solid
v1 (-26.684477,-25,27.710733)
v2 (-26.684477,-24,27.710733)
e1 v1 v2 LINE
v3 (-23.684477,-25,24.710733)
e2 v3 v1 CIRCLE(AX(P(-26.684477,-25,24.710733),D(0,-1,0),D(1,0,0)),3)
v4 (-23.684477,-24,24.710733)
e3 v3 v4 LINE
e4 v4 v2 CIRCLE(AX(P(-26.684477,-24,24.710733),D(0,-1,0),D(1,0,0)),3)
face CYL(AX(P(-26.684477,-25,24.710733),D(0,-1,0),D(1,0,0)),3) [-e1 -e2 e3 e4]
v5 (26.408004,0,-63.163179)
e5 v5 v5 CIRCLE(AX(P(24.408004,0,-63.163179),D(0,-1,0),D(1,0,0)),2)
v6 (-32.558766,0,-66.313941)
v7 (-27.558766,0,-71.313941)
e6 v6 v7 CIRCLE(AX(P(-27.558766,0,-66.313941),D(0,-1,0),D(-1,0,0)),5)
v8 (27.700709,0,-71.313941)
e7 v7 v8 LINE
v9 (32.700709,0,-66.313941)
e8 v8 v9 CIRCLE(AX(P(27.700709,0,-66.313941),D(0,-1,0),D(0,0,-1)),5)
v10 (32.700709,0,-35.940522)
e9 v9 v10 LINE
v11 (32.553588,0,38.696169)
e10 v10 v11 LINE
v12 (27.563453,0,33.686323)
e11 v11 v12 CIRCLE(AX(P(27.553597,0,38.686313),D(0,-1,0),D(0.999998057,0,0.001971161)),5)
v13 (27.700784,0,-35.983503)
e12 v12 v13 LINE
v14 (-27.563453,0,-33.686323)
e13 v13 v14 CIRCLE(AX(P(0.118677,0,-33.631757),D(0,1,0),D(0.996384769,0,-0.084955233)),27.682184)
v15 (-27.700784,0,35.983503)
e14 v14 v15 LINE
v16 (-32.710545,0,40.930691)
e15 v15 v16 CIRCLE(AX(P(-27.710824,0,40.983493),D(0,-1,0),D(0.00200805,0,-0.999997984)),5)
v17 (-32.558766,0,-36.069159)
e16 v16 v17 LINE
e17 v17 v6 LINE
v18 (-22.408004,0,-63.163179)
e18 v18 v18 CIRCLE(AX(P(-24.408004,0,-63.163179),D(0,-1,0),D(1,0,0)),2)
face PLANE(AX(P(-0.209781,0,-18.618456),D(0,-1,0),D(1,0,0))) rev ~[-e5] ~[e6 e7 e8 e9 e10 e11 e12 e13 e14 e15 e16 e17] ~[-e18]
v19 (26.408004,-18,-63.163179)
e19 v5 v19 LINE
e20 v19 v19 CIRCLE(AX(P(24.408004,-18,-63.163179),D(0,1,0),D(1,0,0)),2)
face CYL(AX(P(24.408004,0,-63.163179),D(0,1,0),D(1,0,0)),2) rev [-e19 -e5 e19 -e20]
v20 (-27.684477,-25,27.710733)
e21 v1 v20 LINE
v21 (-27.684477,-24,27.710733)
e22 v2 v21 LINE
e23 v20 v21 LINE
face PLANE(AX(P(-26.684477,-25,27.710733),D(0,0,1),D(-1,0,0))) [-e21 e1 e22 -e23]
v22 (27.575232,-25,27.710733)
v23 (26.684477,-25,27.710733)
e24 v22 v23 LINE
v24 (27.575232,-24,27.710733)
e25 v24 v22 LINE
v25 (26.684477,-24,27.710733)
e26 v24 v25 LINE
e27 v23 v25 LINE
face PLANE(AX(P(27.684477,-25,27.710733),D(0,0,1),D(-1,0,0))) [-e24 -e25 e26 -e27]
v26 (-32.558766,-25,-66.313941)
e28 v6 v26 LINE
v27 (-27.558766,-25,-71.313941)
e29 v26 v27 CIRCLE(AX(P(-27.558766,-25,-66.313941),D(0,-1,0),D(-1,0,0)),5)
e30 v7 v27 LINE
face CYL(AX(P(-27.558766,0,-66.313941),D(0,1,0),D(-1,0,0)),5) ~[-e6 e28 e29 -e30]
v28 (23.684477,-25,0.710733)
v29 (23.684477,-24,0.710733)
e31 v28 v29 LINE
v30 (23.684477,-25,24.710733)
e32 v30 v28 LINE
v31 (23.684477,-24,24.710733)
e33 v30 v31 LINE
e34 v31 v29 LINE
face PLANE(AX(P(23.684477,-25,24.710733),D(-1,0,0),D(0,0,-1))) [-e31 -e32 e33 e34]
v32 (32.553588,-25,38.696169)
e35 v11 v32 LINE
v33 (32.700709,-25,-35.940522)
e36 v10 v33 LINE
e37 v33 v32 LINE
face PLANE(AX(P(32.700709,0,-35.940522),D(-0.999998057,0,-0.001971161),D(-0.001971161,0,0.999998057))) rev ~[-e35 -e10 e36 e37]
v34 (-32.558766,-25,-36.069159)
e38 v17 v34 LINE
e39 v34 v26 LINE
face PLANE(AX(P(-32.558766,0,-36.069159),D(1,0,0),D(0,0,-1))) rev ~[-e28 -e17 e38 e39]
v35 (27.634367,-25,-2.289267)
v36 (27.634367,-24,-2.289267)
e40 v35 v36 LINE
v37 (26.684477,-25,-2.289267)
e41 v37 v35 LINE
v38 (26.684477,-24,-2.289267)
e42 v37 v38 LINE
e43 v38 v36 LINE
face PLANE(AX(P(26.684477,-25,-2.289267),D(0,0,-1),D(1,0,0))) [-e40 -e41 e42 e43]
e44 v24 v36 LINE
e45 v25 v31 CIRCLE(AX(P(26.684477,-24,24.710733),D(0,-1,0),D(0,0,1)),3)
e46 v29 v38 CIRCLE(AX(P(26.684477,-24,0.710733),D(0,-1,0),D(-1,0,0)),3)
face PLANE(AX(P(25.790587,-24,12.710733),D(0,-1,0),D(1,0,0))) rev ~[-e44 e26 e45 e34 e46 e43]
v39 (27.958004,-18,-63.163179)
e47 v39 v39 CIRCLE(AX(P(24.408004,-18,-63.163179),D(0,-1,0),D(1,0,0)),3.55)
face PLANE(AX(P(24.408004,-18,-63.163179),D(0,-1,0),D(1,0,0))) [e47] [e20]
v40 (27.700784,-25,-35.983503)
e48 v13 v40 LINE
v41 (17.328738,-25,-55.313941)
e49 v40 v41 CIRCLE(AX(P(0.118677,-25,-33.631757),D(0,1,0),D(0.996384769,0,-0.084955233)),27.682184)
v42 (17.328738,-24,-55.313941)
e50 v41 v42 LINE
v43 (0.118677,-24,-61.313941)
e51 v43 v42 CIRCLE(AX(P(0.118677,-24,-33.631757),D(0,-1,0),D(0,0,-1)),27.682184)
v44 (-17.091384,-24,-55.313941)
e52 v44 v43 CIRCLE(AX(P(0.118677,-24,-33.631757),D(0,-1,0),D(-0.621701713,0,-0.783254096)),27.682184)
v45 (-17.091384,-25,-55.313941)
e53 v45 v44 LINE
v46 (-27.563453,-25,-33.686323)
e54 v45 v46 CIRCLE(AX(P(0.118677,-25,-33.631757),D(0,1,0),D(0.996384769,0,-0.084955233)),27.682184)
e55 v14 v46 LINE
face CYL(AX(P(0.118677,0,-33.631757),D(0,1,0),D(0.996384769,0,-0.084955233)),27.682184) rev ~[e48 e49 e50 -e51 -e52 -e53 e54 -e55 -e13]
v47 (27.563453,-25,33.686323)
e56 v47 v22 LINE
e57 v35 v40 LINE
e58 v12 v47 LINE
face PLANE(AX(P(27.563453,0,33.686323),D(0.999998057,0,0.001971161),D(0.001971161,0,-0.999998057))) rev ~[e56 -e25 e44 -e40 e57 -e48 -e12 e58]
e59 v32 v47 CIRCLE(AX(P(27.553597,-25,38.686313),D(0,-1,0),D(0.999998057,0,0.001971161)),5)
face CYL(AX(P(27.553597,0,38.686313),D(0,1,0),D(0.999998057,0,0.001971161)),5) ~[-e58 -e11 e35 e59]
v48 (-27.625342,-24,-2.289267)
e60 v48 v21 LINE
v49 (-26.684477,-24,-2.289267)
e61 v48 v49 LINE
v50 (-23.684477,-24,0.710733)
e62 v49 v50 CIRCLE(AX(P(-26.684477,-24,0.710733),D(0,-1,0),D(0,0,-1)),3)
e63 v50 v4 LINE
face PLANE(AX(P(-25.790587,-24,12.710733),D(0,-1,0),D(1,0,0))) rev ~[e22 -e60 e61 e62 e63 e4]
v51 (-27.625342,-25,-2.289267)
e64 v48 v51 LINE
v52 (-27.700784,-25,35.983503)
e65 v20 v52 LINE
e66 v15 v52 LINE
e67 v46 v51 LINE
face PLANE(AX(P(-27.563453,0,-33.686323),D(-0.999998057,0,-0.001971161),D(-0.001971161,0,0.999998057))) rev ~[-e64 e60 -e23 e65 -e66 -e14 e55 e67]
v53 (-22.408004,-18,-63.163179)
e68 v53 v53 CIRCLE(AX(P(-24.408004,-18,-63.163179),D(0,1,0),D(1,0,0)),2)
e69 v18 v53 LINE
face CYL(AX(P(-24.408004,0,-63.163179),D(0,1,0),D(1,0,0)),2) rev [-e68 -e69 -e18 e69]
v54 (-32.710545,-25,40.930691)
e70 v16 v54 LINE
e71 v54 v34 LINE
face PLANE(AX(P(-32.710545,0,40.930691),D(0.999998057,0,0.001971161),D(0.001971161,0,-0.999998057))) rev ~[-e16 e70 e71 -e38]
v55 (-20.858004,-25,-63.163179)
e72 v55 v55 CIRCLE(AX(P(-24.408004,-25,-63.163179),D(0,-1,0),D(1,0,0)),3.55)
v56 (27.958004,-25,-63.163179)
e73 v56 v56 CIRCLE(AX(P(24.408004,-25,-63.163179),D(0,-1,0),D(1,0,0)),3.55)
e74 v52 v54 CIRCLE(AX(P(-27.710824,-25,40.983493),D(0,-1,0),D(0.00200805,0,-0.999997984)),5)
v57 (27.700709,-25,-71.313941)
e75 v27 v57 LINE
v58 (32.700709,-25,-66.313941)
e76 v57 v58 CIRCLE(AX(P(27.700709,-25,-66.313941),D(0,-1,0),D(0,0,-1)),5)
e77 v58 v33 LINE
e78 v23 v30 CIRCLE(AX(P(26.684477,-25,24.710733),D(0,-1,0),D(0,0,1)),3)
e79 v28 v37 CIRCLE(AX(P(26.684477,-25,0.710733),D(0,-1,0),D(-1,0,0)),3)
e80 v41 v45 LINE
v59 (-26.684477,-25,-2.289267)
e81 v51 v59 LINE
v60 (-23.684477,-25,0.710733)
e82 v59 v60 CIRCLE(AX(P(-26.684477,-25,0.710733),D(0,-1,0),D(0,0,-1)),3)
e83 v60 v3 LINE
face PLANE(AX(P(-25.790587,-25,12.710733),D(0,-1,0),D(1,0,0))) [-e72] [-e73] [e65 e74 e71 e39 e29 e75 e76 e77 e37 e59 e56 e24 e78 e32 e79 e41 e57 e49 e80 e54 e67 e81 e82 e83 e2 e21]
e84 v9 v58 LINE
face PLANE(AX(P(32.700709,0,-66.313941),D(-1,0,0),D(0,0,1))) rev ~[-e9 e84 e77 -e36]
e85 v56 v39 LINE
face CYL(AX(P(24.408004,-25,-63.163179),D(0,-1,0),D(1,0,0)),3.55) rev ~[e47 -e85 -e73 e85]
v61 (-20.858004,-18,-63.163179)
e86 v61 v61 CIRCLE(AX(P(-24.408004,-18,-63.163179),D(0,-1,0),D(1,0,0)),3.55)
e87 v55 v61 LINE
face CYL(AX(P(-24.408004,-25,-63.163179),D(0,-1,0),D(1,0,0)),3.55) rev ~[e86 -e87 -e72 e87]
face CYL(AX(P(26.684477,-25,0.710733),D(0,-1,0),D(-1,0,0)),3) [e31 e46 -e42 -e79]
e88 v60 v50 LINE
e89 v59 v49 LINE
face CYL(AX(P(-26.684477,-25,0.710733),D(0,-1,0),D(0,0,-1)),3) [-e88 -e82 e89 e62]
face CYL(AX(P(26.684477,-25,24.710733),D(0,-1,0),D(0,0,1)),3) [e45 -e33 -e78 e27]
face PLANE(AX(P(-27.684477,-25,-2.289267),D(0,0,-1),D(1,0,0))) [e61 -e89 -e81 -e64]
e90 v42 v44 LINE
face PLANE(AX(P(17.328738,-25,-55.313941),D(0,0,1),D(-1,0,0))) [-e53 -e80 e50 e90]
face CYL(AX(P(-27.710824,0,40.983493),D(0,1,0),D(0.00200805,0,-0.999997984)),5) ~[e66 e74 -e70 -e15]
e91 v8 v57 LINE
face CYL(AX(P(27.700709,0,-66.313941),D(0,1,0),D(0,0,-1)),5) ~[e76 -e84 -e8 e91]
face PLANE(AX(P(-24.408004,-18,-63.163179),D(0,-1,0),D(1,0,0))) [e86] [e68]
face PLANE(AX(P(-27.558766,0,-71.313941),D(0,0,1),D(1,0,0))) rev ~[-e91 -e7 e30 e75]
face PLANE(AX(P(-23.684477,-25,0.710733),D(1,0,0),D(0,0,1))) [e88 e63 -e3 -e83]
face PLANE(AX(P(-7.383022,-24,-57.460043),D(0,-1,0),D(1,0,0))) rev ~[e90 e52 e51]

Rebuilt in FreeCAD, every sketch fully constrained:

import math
import FreeCAD as App
import Part
import Sketcher
from FreeCAD import Vector

doc = App.newDocument("Part")
body = doc.addObject("PartDesign::Body", "Body")

# Sketch on XZ plane
sketch1 = body.newObject("Sketcher::SketchObject", "Sketch")
sketch1.AttachmentSupport = (doc.getObject("XZ_Plane"), [""])
sketch1.MapMode = "FlatFace"
sketch1.addGeometry(Part.LineSegment(Vector(27.6, 33.7, 0), Vector(27.7, -36, 0)), False)
sketch1.addGeometry(Part.ArcOfCircle(Part.Circle(Vector(0.1, -33.6, 0), Vector(0, 0, 1), 27.7), math.radians(-180), math.radians(-5)), False)
sketch1.addGeometry(Part.LineSegment(Vector(-27.6, -33.7, 0), Vector(-27.7, 36, 0)), False)
sketch1.addGeometry(Part.ArcOfCircle(Part.Circle(Vector(-27.7, 41, 0), Vector(0, 0, 1), 5), math.radians(-90), math.radians(181)), False)
sketch1.addGeometry(Part.LineSegment(Vector(-32.7, 40.9, 0), Vector(-32.6, -36.1, 0)), False)
sketch1.addGeometry(Part.LineSegment(Vector(-32.6, -36.1, 0), Vector(-32.6, -66.3, 0)), False)
sketch1.addGeometry(Part.ArcOfCircle(Part.Circle(Vector(-27.6, -66.3, 0), Vector(0, 0, 1), 5), math.radians(180), math.radians(270)), False)
sketch1.addGeometry(Part.LineSegment(Vector(-27.6, -71.3, 0), Vector(27.7, -71.3, 0)), False)
sketch1.addGeometry(Part.ArcOfCircle(Part.Circle(Vector(27.7, -66.3, 0), Vector(0, 0, 1), 5), math.radians(-90), math.radians(0)), False)
sketch1.addGeometry(Part.LineSegment(Vector(32.7, -66.3, 0), Vector(32.7, -35.9, 0)), False)
sketch1.addGeometry(Part.LineSegment(Vector(32.7, -35.9, 0), Vector(32.6, 38.7, 0)), False)
sketch1.addGeometry(Part.ArcOfCircle(Part.Circle(Vector(27.6, 38.7, 0), Vector(0, 0, 1), 5), math.radians(0), math.radians(270)), False)
sketch1.addGeometry(Part.Circle(Vector(-24.4, -63.2, 0), Vector(0, 0, 1), 2), False)
sketch1.addGeometry(Part.Circle(Vector(24.4, -63.2, 0), Vector(0, 0, 1), 2), False)
sketch1.addConstraint(Sketcher.Constraint("Coincident", 0, 2, 1, 2))
sketch1.addConstraint(Sketcher.Constraint("Tangent", 1, 1, 2, 1))
sketch1.addConstraint(Sketcher.Constraint("Coincident", 2, 2, 3, 1))
sketch1.addConstraint(Sketcher.Constraint("Coincident", 3, 2, 4, 1))
sketch1.addConstraint(Sketcher.Constraint("Coincident", 4, 2, 5, 1))
sketch1.addConstraint(Sketcher.Constraint("Tangent", 5, 2, 6, 1))
sketch1.addConstraint(Sketcher.Constraint("Tangent", 6, 2, 7, 1))
sketch1.addConstraint(Sketcher.Constraint("Tangent", 7, 2, 8, 1))
sketch1.addConstraint(Sketcher.Constraint("Tangent", 8, 2, 9, 1))
sketch1.addConstraint(Sketcher.Constraint("Coincident", 9, 2, 10, 1))
sketch1.addConstraint(Sketcher.Constraint("Tangent", 10, 2, 11, 1))
sketch1.addConstraint(Sketcher.Constraint("Coincident", 11, 2, 0, 1))
sketch1.addConstraint(Sketcher.Constraint("Vertical", 5))
sketch1.addConstraint(Sketcher.Constraint("Horizontal", 7))
sketch1.addConstraint(Sketcher.Constraint("Vertical", 9))
sketch1.addConstraint(Sketcher.Constraint("Equal", 3, 6))
sketch1.addConstraint(Sketcher.Constraint("Equal", 6, 8))
sketch1.addConstraint(Sketcher.Constraint("Equal", 8, 11))
sketch1.addConstraint(Sketcher.Constraint("Equal", 12, 13))
sketch1.addConstraint(Sketcher.Constraint("Symmetric", 0, 2, 2, 2, -1, 1))
sketch1.addConstraint(Sketcher.Constraint("Symmetric", 1, 1, 11, 2, -1, 1))
sketch1.addConstraint(Sketcher.Constraint("Symmetric", 12, 3, 13, 3, -2))
sketch1.addConstraint(Sketcher.Constraint("Parallel", 2, 4))
sketch1.addConstraint(Sketcher.Constraint("Parallel", 4, 10))
sketch1.addConstraint(Sketcher.Constraint("Diameter", 12, 4.0))
sketch1.addConstraint(Sketcher.Constraint("Radius", 3, 5.0))
sketch1.addConstraint(Sketcher.Constraint("Distance", 4, 77.0))
sketch1.addConstraint(Sketcher.Constraint("Radius", 1, 27.682184))
sketch1.addConstraint(Sketcher.Constraint("DistanceX", 3, 2, 11, 2, 60.273998))
sketch1.addConstraint(Sketcher.Constraint("DistanceY", 9, 1, 9, 2, 30.373419))
sketch1.addConstraint(Sketcher.Constraint("DistanceX", 3, 3, 1, 3, 27.829501))
sketch1.addConstraint(Sketcher.Constraint("DistanceX", 12, 3, 11, 3, 51.961601))
sketch1.addConstraint(Sketcher.Constraint("DistanceY", 3, 2, 3, 3, 0.052802))
sketch1.addConstraint(Sketcher.Constraint("Distance", 0, 69.669962))
sketch1.addConstraint(Sketcher.Constraint("DistanceX", 7, 1, 7, 2, 55.259475))
sketch1.addConstraint(Sketcher.Constraint("DistanceY", 5, 2, 5, 1, 30.244782))
sketch1.addConstraint(Sketcher.Constraint("DistanceY", 6, 3, -1, 1, 66.313941))
sketch1.addConstraint(Sketcher.Constraint("DistanceY", 12, 3, -1, 1, 63.163179))
pad1 = body.newObject("PartDesign::Pad", "Pad")
pad1.Profile = sketch1
pad1.Length = 25

# Sketch on XZ plane
sketch2 = body.newObject("Sketcher::SketchObject", "Sketch001")
sketch2.AttachmentSupport = (doc.getObject("XZ_Plane"), [""])
sketch2.MapMode = "FlatFace"
sketch2.AttachmentOffset = App.Placement(Vector(0, 0, 25), App.Rotation())
sketch2.addGeometry(Part.LineSegment(Vector(-26.7, 27.7, 0), Vector(-27.7, 27.7, 0)), False)
sketch2.addGeometry(Part.LineSegment(Vector(-27.7, 27.7, 0), Vector(-27.7, -2.3, 0)), False)
sketch2.addGeometry(Part.LineSegment(Vector(-27.7, -2.3, 0), Vector(-26.7, -2.3, 0)), False)
sketch2.addGeometry(Part.ArcOfCircle(Part.Circle(Vector(-26.7, 0.7, 0), Vector(0, 0, 1), 3), math.radians(-90), math.radians(0)), False)
sketch2.addGeometry(Part.LineSegment(Vector(-23.7, 0.7, 0), Vector(-23.7, 24.7, 0)), False)
sketch2.addGeometry(Part.ArcOfCircle(Part.Circle(Vector(-26.7, 24.7, 0), Vector(0, 0, 1), 3), math.radians(0), math.radians(90)), False)
sketch2.addGeometry(Part.LineSegment(Vector(26.7, -2.3, 0), Vector(27.7, -2.3, 0)), False)
sketch2.addGeometry(Part.LineSegment(Vector(27.7, -2.3, 0), Vector(27.7, 27.7, 0)), False)
sketch2.addGeometry(Part.LineSegment(Vector(27.7, 27.7, 0), Vector(26.7, 27.7, 0)), False)
sketch2.addGeometry(Part.ArcOfCircle(Part.Circle(Vector(26.7, 24.7, 0), Vector(0, 0, 1), 3), math.radians(90), math.radians(180)), False)
sketch2.addGeometry(Part.LineSegment(Vector(23.7, 24.7, 0), Vector(23.7, 0.7, 0)), False)
sketch2.addGeometry(Part.ArcOfCircle(Part.Circle(Vector(26.7, 0.7, 0), Vector(0, 0, 1), 3), math.radians(180), math.radians(270)), False)
sketch2.addGeometry(Part.ArcOfCircle(Part.Circle(Vector(0.1, -33.6, 0), Vector(0, 0, 1), 27.7), math.radians(-128), math.radians(-90)), False)
sketch2.addGeometry(Part.ArcOfCircle(Part.Circle(Vector(0.1, -33.6, 0), Vector(0, 0, 1), 27.7), math.radians(-90), math.radians(-52)), False)
sketch2.addGeometry(Part.LineSegment(Vector(17.3, -55.3, 0), Vector(-17.1, -55.3, 0)), False)
sketch2.addConstraint(Sketcher.Constraint("Coincident", 0, 2, 1, 1))
sketch2.addConstraint(Sketcher.Constraint("Coincident", 1, 2, 2, 1))
sketch2.addConstraint(Sketcher.Constraint("Tangent", 2, 2, 3, 1))
sketch2.addConstraint(Sketcher.Constraint("Tangent", 3, 2, 4, 1))
sketch2.addConstraint(Sketcher.Constraint("Tangent", 4, 2, 5, 1))
sketch2.addConstraint(Sketcher.Constraint("Tangent", 5, 2, 0, 1))
sketch2.addConstraint(Sketcher.Constraint("Coincident", 6, 2, 7, 1))
sketch2.addConstraint(Sketcher.Constraint("Coincident", 7, 2, 8, 1))
sketch2.addConstraint(Sketcher.Constraint("Tangent", 8, 2, 9, 1))
sketch2.addConstraint(Sketcher.Constraint("Tangent", 9, 2, 10, 1))
sketch2.addConstraint(Sketcher.Constraint("Tangent", 10, 2, 11, 1))
sketch2.addConstraint(Sketcher.Constraint("Tangent", 11, 2, 6, 1))
sketch2.addConstraint(Sketcher.Constraint("Tangent", 12, 2, 13, 1))
sketch2.addConstraint(Sketcher.Constraint("Coincident", 13, 2, 14, 1))
sketch2.addConstraint(Sketcher.Constraint("Coincident", 14, 2, 12, 1))
sketch2.addConstraint(Sketcher.Constraint("Horizontal", 0))
sketch2.addConstraint(Sketcher.Constraint("Vertical", 1))
sketch2.addConstraint(Sketcher.Constraint("Horizontal", 2))
sketch2.addConstraint(Sketcher.Constraint("Vertical", 4))
sketch2.addConstraint(Sketcher.Constraint("Horizontal", 6))
sketch2.addConstraint(Sketcher.Constraint("Vertical", 7))
sketch2.addConstraint(Sketcher.Constraint("Horizontal", 8))
sketch2.addConstraint(Sketcher.Constraint("Vertical", 10))
sketch2.addConstraint(Sketcher.Constraint("Horizontal", 14))
sketch2.addConstraint(Sketcher.Constraint("Equal", 3, 5))
sketch2.addConstraint(Sketcher.Constraint("Equal", 5, 9))
sketch2.addConstraint(Sketcher.Constraint("Equal", 9, 11))
sketch2.addConstraint(Sketcher.Constraint("Equal", 12, 13))
sketch2.addConstraint(Sketcher.Constraint("Symmetric", 5, 3, 9, 3, -2))
sketch2.addConstraint(Sketcher.Constraint("Symmetric", 1, 2, 6, 2, -2))
sketch2.addConstraint(Sketcher.Constraint("Vertical", 13, 3, 12, 2))
sketch2.addConstraint(Sketcher.Constraint("Radius", 3, 3.0))
sketch2.addConstraint(Sketcher.Constraint("DistanceX", 0, 2, 0, 1, 1.0))
sketch2.addConstraint(Sketcher.Constraint("DistanceY", 1, 2, 1, 1, 30.0))
sketch2.addConstraint(Sketcher.Constraint("DistanceY", 12, 2, 13, 2, 6.0))
sketch2.addConstraint(Sketcher.Constraint("Radius", 12, 27.682184))
sketch2.addConstraint(Sketcher.Constraint("DistanceX", 12, 3, 11, 3, 26.5658))
sketch2.addConstraint(Sketcher.Constraint("DistanceY", 12, 2, -1, 1, 61.313941))
sketch2.addConstraint(Sketcher.Constraint("DistanceX", -1, 1, 13, 2, 17.328738))
sketch2.addConstraint(Sketcher.Constraint("DistanceY", 12, 3, 11, 3, 34.34249))
pad2 = body.newObject("PartDesign::Pad", "Pad001")
pad2.Profile = sketch2
pad2.Length = 1
pad2.Reversed = True

# Sketch on XZ plane
sketch3 = body.newObject("Sketcher::SketchObject", "Sketch002")
sketch3.AttachmentSupport = (doc.getObject("XZ_Plane"), [""])
sketch3.MapMode = "FlatFace"
sketch3.AttachmentOffset = App.Placement(Vector(0, 0, 25), App.Rotation())
sketch3.addGeometry(Part.Circle(Vector(-24.4, -63.2, 0), Vector(0, 0, 1), 3.5), False)
sketch3.addGeometry(Part.Circle(Vector(24.4, -63.2, 0), Vector(0, 0, 1), 3.5), False)
sketch3.addConstraint(Sketcher.Constraint("Equal", 0, 1))
sketch3.addConstraint(Sketcher.Constraint("Symmetric", 0, 3, 1, 3, -2))
sketch3.addConstraint(Sketcher.Constraint("Diameter", 0, 7.1))
sketch3.addConstraint(Sketcher.Constraint("DistanceY", 0, 3, -1, 1, 63.163179))
sketch3.addConstraint(Sketcher.Constraint("DistanceX", 0, 3, 1, 3, 48.816008))
pocket1 = body.newObject("PartDesign::Pocket", "Pocket")
pocket1.Profile = sketch3
pocket1.Length = 7

doc.recompute()
